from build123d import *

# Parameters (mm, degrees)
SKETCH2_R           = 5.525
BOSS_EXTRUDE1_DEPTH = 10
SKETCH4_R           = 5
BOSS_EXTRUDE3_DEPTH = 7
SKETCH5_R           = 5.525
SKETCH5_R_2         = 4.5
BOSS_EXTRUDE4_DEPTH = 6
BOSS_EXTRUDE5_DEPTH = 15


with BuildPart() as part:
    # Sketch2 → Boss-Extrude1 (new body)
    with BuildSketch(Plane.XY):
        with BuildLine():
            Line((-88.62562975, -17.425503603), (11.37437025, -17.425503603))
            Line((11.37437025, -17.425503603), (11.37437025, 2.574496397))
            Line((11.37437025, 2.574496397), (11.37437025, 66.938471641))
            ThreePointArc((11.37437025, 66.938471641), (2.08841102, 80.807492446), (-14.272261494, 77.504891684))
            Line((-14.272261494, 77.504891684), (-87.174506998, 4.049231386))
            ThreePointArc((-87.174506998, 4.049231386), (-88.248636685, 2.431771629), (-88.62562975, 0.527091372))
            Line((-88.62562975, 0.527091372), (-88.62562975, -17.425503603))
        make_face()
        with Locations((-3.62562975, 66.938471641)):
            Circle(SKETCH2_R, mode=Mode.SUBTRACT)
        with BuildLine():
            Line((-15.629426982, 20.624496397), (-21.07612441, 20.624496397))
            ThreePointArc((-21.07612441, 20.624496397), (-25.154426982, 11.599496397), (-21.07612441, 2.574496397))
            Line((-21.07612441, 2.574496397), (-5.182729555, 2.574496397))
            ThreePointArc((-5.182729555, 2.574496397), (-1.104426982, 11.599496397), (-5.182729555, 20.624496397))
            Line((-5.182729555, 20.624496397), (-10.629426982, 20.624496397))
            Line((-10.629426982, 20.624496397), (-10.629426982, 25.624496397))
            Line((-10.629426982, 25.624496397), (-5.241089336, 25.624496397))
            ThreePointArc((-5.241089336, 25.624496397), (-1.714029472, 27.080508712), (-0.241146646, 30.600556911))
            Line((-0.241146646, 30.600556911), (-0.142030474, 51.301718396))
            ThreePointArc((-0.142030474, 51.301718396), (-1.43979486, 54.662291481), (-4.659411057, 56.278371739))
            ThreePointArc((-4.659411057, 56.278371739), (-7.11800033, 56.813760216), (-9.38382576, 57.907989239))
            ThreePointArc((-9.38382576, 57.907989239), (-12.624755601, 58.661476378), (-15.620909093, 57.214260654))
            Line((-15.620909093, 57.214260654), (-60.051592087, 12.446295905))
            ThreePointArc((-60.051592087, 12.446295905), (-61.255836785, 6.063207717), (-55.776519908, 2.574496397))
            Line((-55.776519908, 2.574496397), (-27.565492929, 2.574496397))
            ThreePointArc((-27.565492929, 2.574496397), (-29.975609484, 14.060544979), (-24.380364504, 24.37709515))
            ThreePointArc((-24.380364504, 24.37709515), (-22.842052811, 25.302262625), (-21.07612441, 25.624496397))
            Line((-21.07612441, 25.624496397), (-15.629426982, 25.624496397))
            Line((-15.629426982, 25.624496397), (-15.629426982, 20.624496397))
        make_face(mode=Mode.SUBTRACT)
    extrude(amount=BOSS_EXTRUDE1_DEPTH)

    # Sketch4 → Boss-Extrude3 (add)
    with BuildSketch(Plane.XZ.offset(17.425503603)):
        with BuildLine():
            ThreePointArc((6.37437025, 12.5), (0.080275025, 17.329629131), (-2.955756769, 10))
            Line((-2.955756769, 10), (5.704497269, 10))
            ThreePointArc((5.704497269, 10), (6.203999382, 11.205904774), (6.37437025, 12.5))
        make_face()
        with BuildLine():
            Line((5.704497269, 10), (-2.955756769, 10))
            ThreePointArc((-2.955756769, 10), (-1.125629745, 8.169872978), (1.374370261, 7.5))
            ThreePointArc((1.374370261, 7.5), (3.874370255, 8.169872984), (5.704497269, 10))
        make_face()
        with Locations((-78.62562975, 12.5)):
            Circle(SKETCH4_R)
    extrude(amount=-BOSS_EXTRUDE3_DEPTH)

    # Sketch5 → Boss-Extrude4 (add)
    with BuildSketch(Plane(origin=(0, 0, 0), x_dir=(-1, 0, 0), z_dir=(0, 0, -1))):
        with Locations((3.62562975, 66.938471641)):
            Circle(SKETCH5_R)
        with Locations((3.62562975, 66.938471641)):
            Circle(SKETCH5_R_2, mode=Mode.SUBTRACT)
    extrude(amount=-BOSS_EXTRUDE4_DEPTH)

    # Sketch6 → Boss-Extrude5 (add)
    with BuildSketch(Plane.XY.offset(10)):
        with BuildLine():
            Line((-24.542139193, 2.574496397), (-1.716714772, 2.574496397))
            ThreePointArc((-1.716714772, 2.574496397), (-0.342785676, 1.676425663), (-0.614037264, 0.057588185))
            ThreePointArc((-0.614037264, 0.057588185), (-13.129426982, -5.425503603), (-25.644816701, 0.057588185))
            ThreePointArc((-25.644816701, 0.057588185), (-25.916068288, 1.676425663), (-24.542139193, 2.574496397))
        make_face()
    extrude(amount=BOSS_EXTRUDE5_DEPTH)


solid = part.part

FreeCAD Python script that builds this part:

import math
import FreeCAD as App
import Part
import Sketcher
from FreeCAD import Vector
Q = App.Units.Quantity

doc = App.newDocument("Part")
params = doc.addObject("Spreadsheet::Sheet", "Params")
for row, (alias, value) in enumerate([
    ("sketch1_radius", "15 mm"),
    ("sketch1_radius2", "5 mm"),
    ("sketch1_diameter", "11.05 mm"),
    ("sketch1_width", "100 mm"),
    ("pad1_length", "10 mm"),
    ("sketch2_diameter", "10 mm"),
    ("pad2_length", "7 mm"),
    ("sketch3_diameter", "9 mm"),
    ("sketch3_diameter2", "11.05 mm"),
    ("pad3_length", "6 mm"),
    ("sketch4_radius", "1.5 mm"),
    ("pad4_length", "15 mm"),
], start=1):
    params.set(f"A{row}", alias)
    params.set(f"B{row}", "=" + value)
    params.setAlias(f"B{row}", alias)

body = doc.addObject("PartDesign::Body", "Body")

# Sketch on XY plane
sketch1 = doc.addObject("Sketcher::SketchObject", "Sketch")
body.addObject(sketch1)
sketch1.AttachmentSupport = (doc.XY_Plane, [""])
sketch1.MapMode = "FlatFace"
sketch1.addGeometry([
    Part.LineSegment(Vector(-88.6, -17.4, 0), Vector(11.4, -17.4, 0)),  # 0
    Part.LineSegment(Vector(11.4, -17.4, 0), Vector(11.4, 66.9, 0)),  # 1
    Part.ArcOfCircle(Part.Circle(Vector(-3.6, 66.9, 0), Vector(0, 0, 1), 15), math.radians(0), math.radians(135)),  # 2
    Part.LineSegment(Vector(-14.3, 77.5, 0), Vector(-87.2, 4, 0)),  # 3
    Part.ArcOfCircle(Part.Circle(Vector(-83.6, 0.5, 0), Vector(0, 0, 1), 5), math.radians(135), math.radians(180)),  # 4
    Part.LineSegment(Vector(-88.6, 0.5, 0), Vector(-88.6, -17.4, 0)),  # 5
    Part.LineSegment(Vector(-21.1, 20.6, 0), Vector(-15.6, 20.6, 0)),  # 6
    Part.LineSegment(Vector(-15.6, 20.6, 0), Vector(-15.6, 25.6, 0)),  # 7
    Part.LineSegment(Vector(-15.6, 25.6, 0), Vector(-21.1, 25.6, 0)),  # 8
    Part.ArcOfCircle(Part.Circle(Vector(-21.1, 20.6, 0), Vector(0, 0, 1), 5), math.radians(90), math.radians(131)),  # 9
    Part.ArcOfCircle(Part.Circle(Vector(-13.1, 11.6, 0), Vector(0, 0, 1), 17), math.radians(131), math.radians(212)),  # 10
    Part.LineSegment(Vector(-27.6, 2.6, 0), Vector(-55.8, 2.6, 0)),  # 11
    Part.ArcOfCircle(Part.Circle(Vector(-55.9, 8.4, 0), Vector(0, 0, 1), 5.8), math.radians(135), math.radians(272)),  # 12
    Part.LineSegment(Vector(-60.1, 12.4, 0), Vector(-15.6, 57.2, 0)),  # 13
    Part.ArcOfCircle(Part.Circle(Vector(-12.1, 53.7, 0), Vector(0, 0, 1), 5), math.radians(57), math.radians(135)),  # 14
    Part.ArcOfCircle(Part.Circle(Vector(-3.6, 66.9, 0), Vector(0, 0, 1), 10.7), math.radians(-123), math.radians(-96)),  # 15
    Part.ArcOfCircle(Part.Circle(Vector(-5.1, 51.3, 0), Vector(0, 0, 1), 5), math.radians(0), math.radians(84)),  # 16
    Part.LineSegment(Vector(-0.1, 51.3, 0), Vector(-0.2, 30.6, 0)),  # 17
    Part.ArcOfCircle(Part.Circle(Vector(-5.2, 30.6, 0), Vector(0, 0, 1), 5), math.radians(-90), math.radians(0)),  # 18
    Part.LineSegment(Vector(-5.2, 25.6, 0), Vector(-10.6, 25.6, 0)),  # 19
    Part.LineSegment(Vector(-10.6, 25.6, 0), Vector(-10.6, 20.6, 0)),  # 20
    Part.LineSegment(Vector(-10.6, 20.6, 0), Vector(-5.2, 20.6, 0)),  # 21
    Part.ArcOfCircle(Part.Circle(Vector(-13.1, 11.6, 0), Vector(0, 0, 1), 12), math.radians(-49), math.radians(49)),  # 22
    Part.LineSegment(Vector(-5.2, 2.6, 0), Vector(-21.1, 2.6, 0)),  # 23
    Part.ArcOfCircle(Part.Circle(Vector(-13.1, 11.6, 0), Vector(0, 0, 1), 12), math.radians(131), math.radians(229)),  # 24
    Part.Circle(Vector(-3.6, 66.9, 0), Vector(0, 0, 1), 5.5),  # 25
], False)
sketch1.addConstraint([
    Sketcher.Constraint("Coincident", 0, 2, 1, 1),
    Sketcher.Constraint("Tangent", 1, 2, 2, 1),
    Sketcher.Constraint("Tangent", 2, 2, 3, 1),
    Sketcher.Constraint("Tangent", 3, 2, 4, 1),
    Sketcher.Constraint("Tangent", 4, 2, 5, 1),
    Sketcher.Constraint("Coincident", 5, 2, 0, 1),
    Sketcher.Constraint("Coincident", 6, 2, 7, 1),
    Sketcher.Constraint("Coincident", 7, 2, 8, 1),
    Sketcher.Constraint("Tangent", 8, 2, 9, 1),
    Sketcher.Constraint("Tangent", 9, 2, 10, 1),
    Sketcher.Constraint("Coincident", 10, 2, 11, 1),
    Sketcher.Constraint("Coincident", 11, 2, 12, 2),
    Sketcher.Constraint("Tangent", 12, 1, 13, 1),
    Sketcher.Constraint("Tangent", 13, 2, 14, 2),
    Sketcher.Constraint("Tangent", 14, 1, 15, 1),
    Sketcher.Constraint("Tangent", 15, 2, 16, 2),
    Sketcher.Constraint("Coincident", 16, 1, 17, 1),
    Sketcher.Constraint("Tangent", 17, 2, 18, 2),
    Sketcher.Constraint("Tangent", 18, 1, 19, 1),
    Sketcher.Constraint("Coincident", 19, 2, 20, 1),
    Sketcher.Constraint("Coincident", 20, 2, 21, 1),
    Sketcher.Constraint("Coincident", 21, 2, 22, 2),
    Sketcher.Constraint("Coincident", 22, 1, 23, 1),
    Sketcher.Constraint("Coincident", 23, 2, 24, 2),
    Sketcher.Constraint("Coincident", 24, 1, 6, 1),
    Sketcher.Constraint("Horizontal", 0),
    Sketcher.Constraint("Vertical", 1),
    Sketcher.Constraint("Vertical", 5),
    Sketcher.Constraint("Horizontal", 6),
    Sketcher.Constraint("Vertical", 7),
    Sketcher.Constraint("Horizontal", 8),
    Sketcher.Constraint("Horizontal", 11),
    Sketcher.Constraint("Horizontal", 19),
    Sketcher.Constraint("Vertical", 20),
    Sketcher.Constraint("Horizontal", 21),
    Sketcher.Constraint("Horizontal", 23),
    Sketcher.Constraint("Coincident", 15, 3, 2, 3),
    Sketcher.Constraint("Coincident", 22, 3, 10, 3),
    Sketcher.Constraint("Coincident", 24, 3, 10, 3),
    Sketcher.Constraint("Coincident", 25, 3, 2, 3),
    Sketcher.Constraint("Coincident", 24, 1, 9, 3),
    Sketcher.Constraint("Equal", 4, 9),
    Sketcher.Constraint("Equal", 9, 14),
    Sketcher.Constraint("Equal", 14, 16),
    Sketcher.Constraint("Equal", 16, 18),
    Sketcher.Constraint("Equal", 22, 24),
    Sketcher.Constraint("Parallel", 3, 13),
    Sketcher.Constraint("Horizontal", 8, 2, 18, 1),
    Sketcher.Constraint("Horizontal", 6, 2, 20, 2),
    Sketcher.Constraint("Horizontal", 11, 2, 22, 1),
    Sketcher.Constraint("Vertical", 21, 2, 22, 1),
    Sketcher.Constraint("Equal", 8, 21),
    Sketcher.Constraint("Radius", 2, Q("15 mm")),
    Sketcher.Constraint("Radius", 4, Q("5 mm")),
    Sketcher.Constraint("Diameter", 25, Q("11.05 mm")),
    Sketcher.Constraint("DistanceX", 0, 1, 0, 2, Q("100 mm")),
    Sketcher.Constraint("Radius", 10, Q("17.025 mm")),
    Sketcher.Constraint("DistanceX", 7, 2, 19, 2, Q("5 mm")),
    Sketcher.Constraint("Radius", 15, Q("10.710109 mm")),
    Sketcher.Constraint("DistanceX", 14, 3, 16, 3, Q("6.930001 mm")),
    Sketcher.Constraint("DistanceY", 0, 2, 9, 3, Q("38.05 mm")),
    Sketcher.Constraint("DistanceY", 10, 2, 9, 3, Q("18.05 mm")),
    Sketcher.Constraint("Radius", 12, Q("5.793204 mm")),
    Sketcher.Constraint("Distance", 17, Q("20.701399 mm")),
    Sketcher.Constraint("DistanceY", -1, 1, 12, 3, Q("8.365401 mm")),
    Sketcher.Constraint("DistanceX", 16, 3, 15, 3, Q("1.516401 mm")),
    Sketcher.Constraint("DistanceX", 12, 3, 11, 2, Q("0.163198 mm")),
    Sketcher.Constraint("DistanceY", 11, 2, 12, 1, Q("9.8718 mm")),
    Sketcher.Constraint("Distance", 13, Q("63.07342 mm")),
    Sketcher.Constraint("DistanceX", 11, 2, 11, 1, Q("28.211027 mm")),
    Sketcher.Constraint("DistanceX", 19, 2, 19, 1, Q("5.388338 mm")),
    Sketcher.Constraint("DistanceX", 2, 3, -1, 1, Q("3.62563 mm")),
])
sketch1.setExpression("Constraints[52]", "Params.sketch1_radius")
sketch1.setExpression("Constraints[53]", "Params.sketch1_radius2")
sketch1.setExpression("Constraints[54]", "Params.sketch1_diameter")
sketch1.setExpression("Constraints[55]", "Params.sketch1_width")
pad1 = doc.addObject("PartDesign::Pad", "Pad")
body.addObject(pad1)
pad1.Profile = sketch1
pad1.setExpression("Length", "Params.pad1_length")

# Sketch on XZ plane
sketch2 = doc.addObject("Sketcher::SketchObject", "Sketch001")
body.addObject(sketch2)
sketch2.AttachmentSupport = (doc.XZ_Plane, [""])
sketch2.MapMode = "FlatFace"
sketch2.AttachmentOffset = App.Placement(Vector(0, 0, 17.425504), App.Rotation())
sketch2.addGeometry([
    Part.ArcOfCircle(Part.Circle(Vector(1.4, 12.5, 0), Vector(0, 0, 1), 5), math.radians(0), math.radians(210)),  # 0
    Part.ArcOfCircle(Part.Circle(Vector(1.4, 12.5, 0), Vector(0, 0, 1), 5), math.radians(-150), math.radians(-90)),  # 1
    Part.ArcOfCircle(Part.Circle(Vector(1.4, 12.5, 0), Vector(0, 0, 1), 5), math.radians(-90), math.radians(-30)),  # 2
    Part.ArcOfCircle(Part.Circle(Vector(1.4, 12.5, 0), Vector(0, 0, 1), 5), math.radians(-30), math.radians(0)),  # 3
    Part.Circle(Vector(-78.6, 12.5, 0), Vector(0, 0, 1), 5),  # 4
], False)
sketch2.addConstraint([
    Sketcher.Constraint("Tangent", 0, 2, 1, 1),
    Sketcher.Constraint("Tangent", 1, 2, 2, 1),
    Sketcher.Constraint("Tangent", 2, 2, 3, 1),
    Sketcher.Constraint("Tangent", 3, 2, 0, 1),
    Sketcher.Constraint("Equal", 0, 1),
    Sketcher.Constraint("Equal", 3, 4),
    Sketcher.Constraint("Horizontal", 3, 3, 4, 3),
    Sketcher.Constraint("Horizontal", 0, 2, 2, 2),
    Sketcher.Constraint("Horizontal", 4, 3, 3, 2),
    Sketcher.Constraint("Vertical", 3, 3, 1, 2),
    Sketcher.Constraint("Diameter", 4, Q("10 mm")),
    Sketcher.Constraint("DistanceY", -1, 1, 0, 2, Q("10 mm")),
    Sketcher.Constraint("DistanceX", 4, 3, 1, 3, Q("80 mm")),
    Sketcher.Constraint("DistanceY", -1, 1, 0, 3, Q("12.5 mm")),
    Sketcher.Constraint("DistanceX", -1, 1, 0, 3, Q("1.37437 mm")),
])
sketch2.setExpression("Constraints[10]", "Params.sketch2_diameter")
pad2 = doc.addObject("PartDesign::Pad", "Pad001")
body.addObject(pad2)
pad2.Profile = sketch2
pad2.setExpression("Length", "Params.pad2_length")
pad2.Reversed = True

# Sketch on XY plane
sketch3 = doc.addObject("Sketcher::SketchObject", "Sketch002")
body.addObject(sketch3)
sketch3.AttachmentSupport = (doc.XY_Plane, [""])
sketch3.MapMode = "FlatFace"
sketch3.addGeometry([
    Part.Circle(Vector(-3.6, 66.9, 0), Vector(0, 0, 1), 5.5),
    Part.Circle(Vector(-3.6, 66.9, 0), Vector(0, 0, 1), 4.5),
], False)
sketch3.addConstraint([
    Sketcher.Constraint("Coincident", 1, 3, 0, 3),
    Sketcher.Constraint("Diameter", 1, Q("9 mm")),
    Sketcher.Constraint("Diameter", 0, Q("11.05 mm")),
    Sketcher.Constraint("DistanceX", 0, 3, -1, 1, Q("3.62563 mm")),
    Sketcher.Constraint("DistanceY", -1, 1, 0, 3, Q("66.938472 mm")),
])
sketch3.setExpression("Constraints[1]", "Params.sketch3_diameter")
sketch3.setExpression("Constraints[2]", "Params.sketch3_diameter2")
pad3 = doc.addObject("PartDesign::Pad", "Pad002")
body.addObject(pad3)
pad3.Profile = sketch3
pad3.setExpression("Length", "Params.pad3_length")

# Sketch on XY plane
sketch4 = doc.addObject("Sketcher::SketchObject", "Sketch003")
body.addObject(sketch4)
sketch4.AttachmentSupport = (doc.XY_Plane, [""])
sketch4.MapMode = "FlatFace"
sketch4.AttachmentOffset = App.Placement(Vector(0, 0, 10), App.Rotation())
sketch4.addGeometry([
    Part.LineSegment(Vector(-1.7, 2.6, 0), Vector(-24.5, 2.6, 0)),
    Part.ArcOfCircle(Part.Circle(Vector(-24.5, 1.1, 0), Vector(0, 0, 1), 1.5), math.radians(90), math.radians(223)),
    Part.ArcOfCircle(Part.Circle(Vector(-13.1, 11.6, 0), Vector(0, 0, 1), 17), math.radians(-137), math.radians(-43)),
    Part.ArcOfCircle(Part.Circle(Vector(-1.7, 1.1, 0), Vector(0, 0, 1), 1.5), math.radians(-43), math.radians(90)),
], False)
sketch4.addConstraint([
    Sketcher.Constraint("Tangent", 0, 2, 1, 1),
    Sketcher.Constraint("Tangent", 1, 2, 2, 1),
    Sketcher.Constraint("Tangent", 2, 2, 3, 1),
    Sketcher.Constraint("Tangent", 3, 2, 0, 1),
    Sketcher.Constraint("Horizontal", 0),
    Sketcher.Constraint("Equal", 1, 3),
    Sketcher.Constraint("Radius", 1, Q("1.5 mm")),
    Sketcher.Constraint("Radius", 2, Q("17.025 mm")),
    Sketcher.Constraint("DistanceY", 1, 3, 2, 3, Q("10.525 mm")),
    Sketcher.Constraint("DistanceX", 1, 3, -1, 1, Q("24.542139 mm")),
    Sketcher.Constraint("DistanceY", -1, 1, 1, 2, Q("0.057588 mm")),
])
sketch4.setExpression("Constraints[6]", "Params.sketch4_radius")
pad4 = doc.addObject("PartDesign::Pad", "Pad003")
body.addObject(pad4)
pad4.Profile = sketch4
pad4.setExpression("Length", "Params.pad4_length")

doc.recompute()
